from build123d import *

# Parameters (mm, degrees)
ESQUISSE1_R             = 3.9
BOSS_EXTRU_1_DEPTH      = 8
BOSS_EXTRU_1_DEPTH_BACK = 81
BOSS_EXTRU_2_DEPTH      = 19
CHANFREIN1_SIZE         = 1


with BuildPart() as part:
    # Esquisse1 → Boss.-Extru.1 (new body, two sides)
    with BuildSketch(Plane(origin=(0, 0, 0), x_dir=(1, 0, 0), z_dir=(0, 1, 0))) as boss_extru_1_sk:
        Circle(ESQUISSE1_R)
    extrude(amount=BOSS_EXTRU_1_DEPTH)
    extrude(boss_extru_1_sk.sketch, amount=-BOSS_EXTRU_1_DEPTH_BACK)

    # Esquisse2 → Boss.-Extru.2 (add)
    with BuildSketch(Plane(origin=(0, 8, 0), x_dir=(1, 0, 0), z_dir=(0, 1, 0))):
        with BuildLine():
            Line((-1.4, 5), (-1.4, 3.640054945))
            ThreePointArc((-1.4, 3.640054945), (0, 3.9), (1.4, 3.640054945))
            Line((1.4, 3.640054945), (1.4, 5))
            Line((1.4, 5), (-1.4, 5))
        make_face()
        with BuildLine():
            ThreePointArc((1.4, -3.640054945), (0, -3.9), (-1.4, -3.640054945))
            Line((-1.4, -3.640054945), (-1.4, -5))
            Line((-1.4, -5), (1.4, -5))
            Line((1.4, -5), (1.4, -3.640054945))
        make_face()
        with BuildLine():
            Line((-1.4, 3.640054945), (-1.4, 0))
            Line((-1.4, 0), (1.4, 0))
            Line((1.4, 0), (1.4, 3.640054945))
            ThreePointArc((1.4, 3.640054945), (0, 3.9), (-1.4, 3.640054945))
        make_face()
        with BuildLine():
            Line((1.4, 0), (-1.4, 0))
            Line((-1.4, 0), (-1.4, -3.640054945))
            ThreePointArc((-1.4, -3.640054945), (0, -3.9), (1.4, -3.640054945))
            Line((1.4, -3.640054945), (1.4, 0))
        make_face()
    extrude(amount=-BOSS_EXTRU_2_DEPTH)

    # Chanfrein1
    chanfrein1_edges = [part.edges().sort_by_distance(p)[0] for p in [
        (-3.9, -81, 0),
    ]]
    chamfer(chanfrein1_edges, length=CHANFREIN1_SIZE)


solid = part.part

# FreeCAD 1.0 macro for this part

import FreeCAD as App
import Part
import Sketcher
from FreeCAD import Vector
Q = App.Units.Quantity


def edges_at(feature, points):
    """Names of the edges that pass closest to the given points."""
    edges = feature.Shape.Edges
    near = lambda p: min(range(len(edges)), key=lambda i: edges[i].distToShape(Part.Vertex(*p))[0])
    return sorted({f"Edge{near(p) + 1}" for p in points})

doc = App.newDocument("Part")
body = doc.addObject("PartDesign::Body", "Body")

# Sketch on XZ plane
sketch1 = doc.addObject("Sketcher::SketchObject", "Sketch")
body.addObject(sketch1)
sketch1.AttachmentSupport = (doc.XZ_Plane, [""])
sketch1.MapMode = "FlatFace"
sketch1.addGeometry(Part.Circle(Vector(0, 0, 0), Vector(0, 0, 1), 3.9), False)
sketch1.addConstraint([
    Sketcher.Constraint("Coincident", 0, 3, -1, 1),
    Sketcher.Constraint("Diameter", 0, Q("7.8 mm")),
])
pad1 = doc.addObject("PartDesign::Pad", "Pad")
body.addObject(pad1)
pad1.Profile = sketch1
pad1.Type = "TwoLengths"
pad1.Length = 8
pad1.Length2 = 81
pad1.Reversed = True

# Sketch on XZ plane
sketch2 = doc.addObject("Sketcher::SketchObject", "Sketch001")
body.addObject(sketch2)
sketch2.AttachmentSupport = (doc.XZ_Plane, [""])
sketch2.MapMode = "FlatFace"
sketch2.AttachmentOffset = App.Placement(Vector(0, 0, -8), App.Rotation())
sketch2.addGeometry([
    Part.LineSegment(Vector(1.4, -5, 0), Vector(-1.4, -5, 0)),
    Part.LineSegment(Vector(-1.4, -5, 0), Vector(-1.4, 5, 0)),
    Part.LineSegment(Vector(-1.4, 5, 0), Vector(1.4, 5, 0)),
    Part.LineSegment(Vector(1.4, 5, 0), Vector(1.4, -5, 0)),
], False)
sketch2.addConstraint([
    Sketcher.Constraint("Coincident", 0, 2, 1, 1),
    Sketcher.Constraint("Coincident", 1, 2, 2, 1),
    Sketcher.Constraint("Coincident", 2, 2, 3, 1),
    Sketcher.Constraint("Coincident", 3, 2, 0, 1),
    Sketcher.Constraint("Horizontal", 0),
    Sketcher.Constraint("Vertical", 1),
    Sketcher.Constraint("Horizontal", 2),
    Sketcher.Constraint("Vertical", 3),
    Sketcher.Constraint("Symmetric", 0, 2, 2, 2, -1, 1),
    Sketcher.Constraint("DistanceY", 1, 1, 1, 2, Q("10 mm")),
    Sketcher.Constraint("DistanceX", 0, 2, 0, 1, Q("2.8 mm")),
])
pad2 = doc.addObject("PartDesign::Pad", "Pad001")
body.addObject(pad2)
pad2.Profile = sketch2
pad2.Length = 19
doc.recompute()

chamfer = doc.addObject("PartDesign::Chamfer", "Chamfer")
body.addObject(chamfer)
chamfer.Base = (pad2, edges_at(pad2, [(-3.9, -81, 0)]))
chamfer.Size = 1

doc.recompute()
